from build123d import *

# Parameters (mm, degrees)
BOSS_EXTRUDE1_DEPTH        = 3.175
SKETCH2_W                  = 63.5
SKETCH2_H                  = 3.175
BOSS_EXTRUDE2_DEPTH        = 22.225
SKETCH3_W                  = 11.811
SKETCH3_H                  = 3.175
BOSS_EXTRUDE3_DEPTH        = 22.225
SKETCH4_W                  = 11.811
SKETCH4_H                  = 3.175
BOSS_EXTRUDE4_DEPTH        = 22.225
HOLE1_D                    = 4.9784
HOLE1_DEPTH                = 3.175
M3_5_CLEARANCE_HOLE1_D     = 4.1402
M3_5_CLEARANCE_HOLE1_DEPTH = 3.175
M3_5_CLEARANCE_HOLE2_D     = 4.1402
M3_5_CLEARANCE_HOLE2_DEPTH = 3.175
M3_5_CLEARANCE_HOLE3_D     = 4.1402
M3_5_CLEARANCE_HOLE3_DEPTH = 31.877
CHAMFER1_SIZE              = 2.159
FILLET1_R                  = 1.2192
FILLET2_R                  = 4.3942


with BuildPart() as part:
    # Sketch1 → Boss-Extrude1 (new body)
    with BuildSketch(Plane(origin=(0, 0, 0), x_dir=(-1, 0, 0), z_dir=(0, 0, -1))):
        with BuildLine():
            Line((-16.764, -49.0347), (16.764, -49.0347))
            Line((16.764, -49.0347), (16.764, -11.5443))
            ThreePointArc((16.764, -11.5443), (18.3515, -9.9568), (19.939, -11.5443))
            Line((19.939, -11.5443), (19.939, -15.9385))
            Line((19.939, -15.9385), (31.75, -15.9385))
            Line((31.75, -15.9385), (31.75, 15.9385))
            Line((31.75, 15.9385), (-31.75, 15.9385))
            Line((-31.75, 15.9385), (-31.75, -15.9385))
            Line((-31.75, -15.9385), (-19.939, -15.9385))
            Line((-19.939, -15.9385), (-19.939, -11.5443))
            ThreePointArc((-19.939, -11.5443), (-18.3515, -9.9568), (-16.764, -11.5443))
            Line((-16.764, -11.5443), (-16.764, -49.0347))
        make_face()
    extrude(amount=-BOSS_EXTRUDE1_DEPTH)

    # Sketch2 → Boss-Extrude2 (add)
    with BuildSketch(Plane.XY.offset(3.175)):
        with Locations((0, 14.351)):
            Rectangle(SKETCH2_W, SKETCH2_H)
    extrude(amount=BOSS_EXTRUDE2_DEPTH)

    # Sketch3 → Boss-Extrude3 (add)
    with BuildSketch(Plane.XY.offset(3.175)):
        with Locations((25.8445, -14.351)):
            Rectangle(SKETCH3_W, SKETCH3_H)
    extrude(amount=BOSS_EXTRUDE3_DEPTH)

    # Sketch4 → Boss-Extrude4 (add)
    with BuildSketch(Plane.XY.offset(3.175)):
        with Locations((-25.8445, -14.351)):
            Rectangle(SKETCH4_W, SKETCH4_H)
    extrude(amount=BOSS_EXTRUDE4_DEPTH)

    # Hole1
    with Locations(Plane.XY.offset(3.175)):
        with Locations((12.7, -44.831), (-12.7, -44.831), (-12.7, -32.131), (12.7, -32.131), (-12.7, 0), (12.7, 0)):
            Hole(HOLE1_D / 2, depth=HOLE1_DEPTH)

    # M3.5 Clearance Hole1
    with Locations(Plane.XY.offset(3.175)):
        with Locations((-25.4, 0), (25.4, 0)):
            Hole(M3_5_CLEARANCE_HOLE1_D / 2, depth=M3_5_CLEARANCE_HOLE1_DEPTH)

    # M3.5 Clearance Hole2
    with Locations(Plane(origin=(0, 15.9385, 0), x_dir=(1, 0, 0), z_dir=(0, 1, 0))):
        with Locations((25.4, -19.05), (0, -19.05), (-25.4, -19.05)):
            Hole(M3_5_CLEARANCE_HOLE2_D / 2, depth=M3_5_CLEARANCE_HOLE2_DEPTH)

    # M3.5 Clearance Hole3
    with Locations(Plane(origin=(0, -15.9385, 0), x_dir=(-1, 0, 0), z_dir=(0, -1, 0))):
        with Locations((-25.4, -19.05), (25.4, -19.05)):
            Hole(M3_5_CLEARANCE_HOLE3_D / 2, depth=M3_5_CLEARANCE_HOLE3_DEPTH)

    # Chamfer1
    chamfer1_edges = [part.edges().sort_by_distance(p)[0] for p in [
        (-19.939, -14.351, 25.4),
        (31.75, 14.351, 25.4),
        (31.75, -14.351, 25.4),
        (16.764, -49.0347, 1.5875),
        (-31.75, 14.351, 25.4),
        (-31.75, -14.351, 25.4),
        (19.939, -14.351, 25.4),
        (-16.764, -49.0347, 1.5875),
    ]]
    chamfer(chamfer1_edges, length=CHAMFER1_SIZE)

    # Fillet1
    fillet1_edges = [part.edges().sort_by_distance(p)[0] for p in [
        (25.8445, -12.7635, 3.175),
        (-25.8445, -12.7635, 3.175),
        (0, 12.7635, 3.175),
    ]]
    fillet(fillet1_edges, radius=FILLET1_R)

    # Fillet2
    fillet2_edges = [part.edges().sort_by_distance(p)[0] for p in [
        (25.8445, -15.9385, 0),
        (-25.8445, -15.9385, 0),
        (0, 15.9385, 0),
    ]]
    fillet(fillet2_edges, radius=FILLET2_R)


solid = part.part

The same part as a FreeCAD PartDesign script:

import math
import FreeCAD as App
import Part
import Sketcher

V = App.Vector
Q = App.Units.Quantity


def edges_at(feature, points):
    """Names of the edges that pass closest to the given points."""
    edges = feature.Shape.Edges
    near = lambda p: min(range(len(edges)), key=lambda i: edges[i].distToShape(Part.Vertex(*p))[0])
    return sorted({f"Edge{near(p) + 1}" for p in points})

doc = App.newDocument("Part")
body = doc.addObject("PartDesign::Body", "Body")

# Sketch on XY plane
sketch1 = doc.addObject("Sketcher::SketchObject", "Sketch")
body.addObject(sketch1)
sketch1.AttachmentSupport = (doc.XY_Plane, [""])
sketch1.MapMode = "FlatFace"
sketch1.addGeometry([
    Part.LineSegment(V(16.8, -49, 0), V(-16.8, -49, 0)),  # 0
    Part.LineSegment(V(-16.8, -49, 0), V(-16.8, -11.5, 0)),  # 1
    Part.ArcOfCircle(Part.Circle(V(-18.4, -11.5, 0), V(0, 0, 1), 1.6), math.radians(0), math.radians(180)),  # 2
    Part.LineSegment(V(-19.9, -11.5, 0), V(-19.9, -15.9, 0)),  # 3
    Part.LineSegment(V(-19.9, -15.9, 0), V(-31.8, -15.9, 0)),  # 4
    Part.LineSegment(V(-31.8, -15.9, 0), V(-31.8, 15.9, 0)),  # 5
    Part.LineSegment(V(-31.8, 15.9, 0), V(31.8, 15.9, 0)),  # 6
    Part.LineSegment(V(31.8, 15.9, 0), V(31.8, -15.9, 0)),  # 7
    Part.LineSegment(V(31.8, -15.9, 0), V(19.9, -15.9, 0)),  # 8
    Part.LineSegment(V(19.9, -15.9, 0), V(19.9, -11.5, 0)),  # 9
    Part.ArcOfCircle(Part.Circle(V(18.4, -11.5, 0), V(0, 0, 1), 1.6), math.radians(0), math.radians(180)),  # 10
    Part.LineSegment(V(16.8, -11.5, 0), V(16.8, -49, 0)),  # 11
], False)
sketch1.addConstraint([
    Sketcher.Constraint("Coincident", 0, 2, 1, 1),
    Sketcher.Constraint("Tangent", 1, 2, 2, 1),
    Sketcher.Constraint("Tangent", 2, 2, 3, 1),
    Sketcher.Constraint("Coincident", 3, 2, 4, 1),
    Sketcher.Constraint("Coincident", 4, 2, 5, 1),
    Sketcher.Constraint("Coincident", 5, 2, 6, 1),
    Sketcher.Constraint("Coincident", 6, 2, 7, 1),
    Sketcher.Constraint("Coincident", 7, 2, 8, 1),
    Sketcher.Constraint("Coincident", 8, 2, 9, 1),
    Sketcher.Constraint("Tangent", 9, 2, 10, 1),
    Sketcher.Constraint("Tangent", 10, 2, 11, 1),
    Sketcher.Constraint("Coincident", 11, 2, 0, 1),
    Sketcher.Constraint("Horizontal", 0),
    Sketcher.Constraint("Vertical", 1),
    Sketcher.Constraint("Vertical", 3),
    Sketcher.Constraint("Horizontal", 4),
    Sketcher.Constraint("Vertical", 5),
    Sketcher.Constraint("Horizontal", 6),
    Sketcher.Constraint("Vertical", 7),
    Sketcher.Constraint("Horizontal", 8),
    Sketcher.Constraint("Vertical", 9),
    Sketcher.Constraint("Vertical", 11),
    Sketcher.Constraint("Equal", 2, 10),
    Sketcher.Constraint("Symmetric", 4, 2, 6, 2, -1, 1),
    Sketcher.Constraint("Symmetric", 2, 3, 10, 3, -2),
    Sketcher.Constraint("Horizontal", 4, 2, 7, 2),
    Sketcher.Constraint("DistanceX", 6, 1, 6, 2, Q("2.5 in")),
    Sketcher.Constraint("Radius", 2, Q("0.0625 in")),
    Sketcher.Constraint("DistanceX", 0, 2, 0, 1, Q("1.32 in")),
    Sketcher.Constraint("DistanceY", 1, 1, 1, 2, Q("1.476 in")),
    Sketcher.Constraint("DistanceY", 3, 2, 3, 1, Q("0.173 in")),
    Sketcher.Constraint("DistanceY", 5, 1, 5, 2, Q("1.255 in")),
])
pad1 = doc.addObject("PartDesign::Pad", "Pad")
body.addObject(pad1)
pad1.Profile = sketch1
pad1.Length = Q("0.125 in")

# Sketch on XY plane
sketch2 = doc.addObject("Sketcher::SketchObject", "Sketch001")
body.addObject(sketch2)
sketch2.AttachmentSupport = (doc.XY_Plane, [""])
sketch2.MapMode = "FlatFace"
sketch2.AttachmentOffset = App.Placement(V(0, 0, 0.125 * 25.4), App.Rotation())
sketch2.addGeometry([
    Part.LineSegment(V(-31.8, 15.9, 0), V(-31.8, 12.8, 0)),
    Part.LineSegment(V(-31.8, 12.8, 0), V(31.8, 12.8, 0)),
    Part.LineSegment(V(31.8, 12.8, 0), V(31.8, 15.9, 0)),
    Part.LineSegment(V(31.8, 15.9, 0), V(-31.8, 15.9, 0)),
], False)
sketch2.addConstraint([
    Sketcher.Constraint("Coincident", 0, 2, 1, 1),
    Sketcher.Constraint("Coincident", 1, 2, 2, 1),
    Sketcher.Constraint("Coincident", 2, 2, 3, 1),
    Sketcher.Constraint("Coincident", 3, 2, 0, 1),
    Sketcher.Constraint("Vertical", 0),
    Sketcher.Constraint("Horizontal", 1),
    Sketcher.Constraint("Vertical", 2),
    Sketcher.Constraint("Horizontal", 3),
    Sketcher.Constraint("DistanceX", 1, 1, 1, 2, Q("2.5 in")),
    Sketcher.Constraint("DistanceY", 0, 2, 0, 1, Q("0.125 in")),
    Sketcher.Constraint("DistanceX", 0, 2, -1, 1, Q("1.25 in")),
    Sketcher.Constraint("DistanceY", -1, 1, 0, 2, Q("0.5025 in")),
])
pad2 = doc.addObject("PartDesign::Pad", "Pad001")
body.addObject(pad2)
pad2.Profile = sketch2
pad2.Length = Q("0.875 in")

# Sketch on XY plane
sketch3 = doc.addObject("Sketcher::SketchObject", "Sketch002")
body.addObject(sketch3)
sketch3.AttachmentSupport = (doc.XY_Plane, [""])
sketch3.MapMode = "FlatFace"
sketch3.AttachmentOffset = App.Placement(V(0, 0, 0.125 * 25.4), App.Rotation())
sketch3.addGeometry([
    Part.LineSegment(V(19.9, -12.8, 0), V(19.9, -15.9, 0)),
    Part.LineSegment(V(19.9, -15.9, 0), V(31.8, -15.9, 0)),
    Part.LineSegment(V(31.8, -15.9, 0), V(31.8, -12.8, 0)),
    Part.LineSegment(V(31.8, -12.8, 0), V(19.9, -12.8, 0)),
], False)
sketch3.addConstraint([
    Sketcher.Constraint("Coincident", 0, 2, 1, 1),
    Sketcher.Constraint("Coincident", 1, 2, 2, 1),
    Sketcher.Constraint("Coincident", 2, 2, 3, 1),
    Sketcher.Constraint("Coincident", 3, 2, 0, 1),
    Sketcher.Constraint("Vertical", 0),
    Sketcher.Constraint("Horizontal", 1),
    Sketcher.Constraint("Vertical", 2),
    Sketcher.Constraint("Horizontal", 3),
    Sketcher.Constraint("DistanceX", 1, 1, 1, 2, Q("0.465 in")),
    Sketcher.Constraint("DistanceY", 0, 2, 0, 1, Q("0.125 in")),
    Sketcher.Constraint("DistanceX", -1, 1, 1, 2, Q("1.25 in")),
    Sketcher.Constraint("DistanceY", 0, 2, -1, 1, Q("0.6275 in")),
])
pad3 = doc.addObject("PartDesign::Pad", "Pad002")
body.addObject(pad3)
pad3.Profile = sketch3
pad3.Length = Q("0.875 in")

# Sketch on XY plane
sketch4 = doc.addObject("Sketcher::SketchObject", "Sketch003")
body.addObject(sketch4)
sketch4.AttachmentSupport = (doc.XY_Plane, [""])
sketch4.MapMode = "FlatFace"
sketch4.AttachmentOffset = App.Placement(V(0, 0, 0.125 * 25.4), App.Rotation())
sketch4.addGeometry([
    Part.LineSegment(V(-31.8, -12.8, 0), V(-31.8, -15.9, 0)),
    Part.LineSegment(V(-31.8, -15.9, 0), V(-19.9, -15.9, 0)),
    Part.LineSegment(V(-19.9, -15.9, 0), V(-19.9, -12.8, 0)),
    Part.LineSegment(V(-19.9, -12.8, 0), V(-31.8, -12.8, 0)),
], False)
sketch4.addConstraint([
    Sketcher.Constraint("Coincident", 0, 2, 1, 1),
    Sketcher.Constraint("Coincident", 1, 2, 2, 1),
    Sketcher.Constraint("Coincident", 2, 2, 3, 1),
    Sketcher.Constraint("Coincident", 3, 2, 0, 1),
    Sketcher.Constraint("Vertical", 0),
    Sketcher.Constraint("Horizontal", 1),
    Sketcher.Constraint("Vertical", 2),
    Sketcher.Constraint("Horizontal", 3),
    Sketcher.Constraint("DistanceX", 1, 1, 1, 2, Q("0.465 in")),
    Sketcher.Constraint("DistanceY", 0, 2, 0, 1, Q("0.125 in")),
    Sketcher.Constraint("DistanceX", 0, 2, -1, 1, Q("1.25 in")),
    Sketcher.Constraint("DistanceY", 0, 2, -1, 1, Q("0.6275 in")),
])
pad4 = doc.addObject("PartDesign::Pad", "Pad003")
body.addObject(pad4)
pad4.Profile = sketch4
pad4.Length = Q("0.875 in")

# Sketch on XY plane
sketch5 = doc.addObject("Sketcher::SketchObject", "Sketch004")
body.addObject(sketch5)
sketch5.AttachmentSupport = (doc.XY_Plane, [""])
sketch5.MapMode = "FlatFace"
sketch5.AttachmentOffset = App.Placement(V(0, 0, 0.125 * 25.4), App.Rotation())
sketch5.addGeometry([
    Part.Circle(V(12.7, -44.8, 0), V(0, 0, 1), 2.5),  # 0
    Part.Circle(V(-12.7, -44.8, 0), V(0, 0, 1), 2.5),  # 1
    Part.Circle(V(-12.7, -32.1, 0), V(0, 0, 1), 2.5),  # 2
    Part.Circle(V(12.7, -32.1, 0), V(0, 0, 1), 2.5),  # 3
    Part.Circle(V(-12.7, 0, 0), V(0, 0, 1), 2.5),  # 4
    Part.Circle(V(12.7, 0, 0), V(0, 0, 1), 2.5),  # 5
], False)
sketch5.addConstraint([
    Sketcher.Constraint("Equal", 0, 1),
    Sketcher.Constraint("Equal", 1, 2),
    Sketcher.Constraint("Equal", 2, 3),
    Sketcher.Constraint("Equal", 3, 4),
    Sketcher.Constraint("Equal", 4, 5),
    Sketcher.Constraint("Symmetric", 4, 3, 5, 3, -1, 1),
    Sketcher.Constraint("Symmetric", 0, 3, 1, 3, -2),
    Sketcher.Constraint("Symmetric", 2, 3, 3, 3, -2),
    Sketcher.Constraint("PointOnObject", 4, 3, -1),
    Sketcher.Constraint("Vertical", 1, 3, 2, 3),
    Sketcher.Constraint("Vertical", 2, 3, 4, 3),
    Sketcher.Constraint("Diameter", 0, Q("0.196 in")),
    Sketcher.Constraint("DistanceX", 1, 3, 0, 3, Q("1 in")),
    Sketcher.Constraint("DistanceY", 1, 3, 2, 3, Q("0.5 in")),
    Sketcher.Constraint("DistanceY", 0, 3, -1, 1, Q("1.765 in")),
])
doc.recompute()
hole = doc.addObject("PartDesign::Hole", "Hole")
body.addObject(hole)
hole.Profile = sketch5
hole.ThreadType = "None"
hole.Diameter = Q("0.196 in")
hole.DepthType = "Dimension"
hole.Depth = Q("0.125 in")
hole.DrillPoint = "Flat"

# Sketch on XY plane
sketch6 = doc.addObject("Sketcher::SketchObject", "Sketch005")
body.addObject(sketch6)
sketch6.AttachmentSupport = (doc.XY_Plane, [""])
sketch6.MapMode = "FlatFace"
sketch6.AttachmentOffset = App.Placement(V(0, 0, 0.125 * 25.4), App.Rotation())
sketch6.addGeometry([
    Part.Circle(V(-25.4, 0, 0), V(0, 0, 1), 2.1),
    Part.Circle(V(25.4, 0, 0), V(0, 0, 1), 2.1),
], False)
sketch6.addConstraint([
    Sketcher.Constraint("Equal", 0, 1),
    Sketcher.Constraint("Symmetric", 0, 3, 1, 3, -1, 1),
    Sketcher.Constraint("PointOnObject", 0, 3, -1),
    Sketcher.Constraint("Diameter", 0, Q("0.163 in")),
    Sketcher.Constraint("DistanceX", 0, 3, -1, 1, Q("1 in")),
])
doc.recompute()
hole2 = doc.addObject("PartDesign::Hole", "Hole001")
body.addObject(hole2)
hole2.Profile = sketch6
hole2.ThreadType = "None"
hole2.Diameter = Q("0.163 in")
hole2.DepthType = "Dimension"
hole2.Depth = Q("0.125 in")
hole2.DrillPoint = "Flat"

# Sketch on XZ plane
sketch7 = doc.addObject("Sketcher::SketchObject", "Sketch006")
body.addObject(sketch7)
sketch7.AttachmentSupport = (doc.XZ_Plane, [""])
sketch7.MapMode = "FlatFace"
sketch7.AttachmentOffset = App.Placement(V(0, 0, -0.6275 * 25.4), App.Rotation())
sketch7.addGeometry([
    Part.Circle(V(25.4, 19.1, 0), V(0, 0, 1), 2.1),
    Part.Circle(V(0, 19.1, 0), V(0, 0, 1), 2.1),
    Part.Circle(V(-25.4, 19.1, 0), V(0, 0, 1), 2.1),
], False)
sketch7.addConstraint([
    Sketcher.Constraint("Equal", 0, 1),
    Sketcher.Constraint("Equal", 1, 2),
    Sketcher.Constraint("Symmetric", 0, 3, 2, 3, -2),
    Sketcher.Constraint("PointOnObject", 1, 3, -2),
    Sketcher.Constraint("Horizontal", 0, 3, 1, 3),
    Sketcher.Constraint("Diameter", 0, Q("0.163 in")),
    Sketcher.Constraint("DistanceX", -1, 1, 0, 3, Q("1 in")),
    Sketcher.Constraint("DistanceY", -1, 1, 0, 3, Q("0.75 in")),
])
doc.recompute()
hole3 = doc.addObject("PartDesign::Hole", "Hole002")
body.addObject(hole3)
hole3.Profile = sketch7
hole3.ThreadType = "None"
hole3.Diameter = Q("0.163 in")
hole3.DepthType = "Dimension"
hole3.Depth = Q("0.125 in")
hole3.DrillPoint = "Flat"
hole3.Reversed = True

# Sketch on XZ plane
sketch8 = doc.addObject("Sketcher::SketchObject", "Sketch007")
body.addObject(sketch8)
sketch8.AttachmentSupport = (doc.XZ_Plane, [""])
sketch8.MapMode = "FlatFace"
sketch8.AttachmentOffset = App.Placement(V(0, 0, 0.6275 * 25.4), App.Rotation())
sketch8.addGeometry([
    Part.Circle(V(25.4, 19.1, 0), V(0, 0, 1), 2.1),
    Part.Circle(V(-25.4, 19.1, 0), V(0, 0, 1), 2.1),
], False)
sketch8.addConstraint([
    Sketcher.Constraint("Equal", 0, 1),
    Sketcher.Constraint("Symmetric", 0, 3, 1, 3, -2),
    Sketcher.Constraint("Diameter", 0, Q("0.163 in")),
    Sketcher.Constraint("DistanceX", -1, 1, 0, 3, Q("1 in")),
    Sketcher.Constraint("DistanceY", -1, 1, 0, 3, Q("0.75 in")),
])
doc.recompute()
hole4 = doc.addObject("PartDesign::Hole", "Hole003")
body.addObject(hole4)
hole4.Profile = sketch8
hole4.ThreadType = "None"
hole4.Diameter = Q("0.163 in")
hole4.DepthType = "Dimension"
hole4.Depth = Q("1.255 in")
hole4.DrillPoint = "Flat"
doc.recompute()

chamfer = doc.addObject("PartDesign::Chamfer", "Chamfer")
body.addObject(chamfer)
chamfer.Base = (hole4, edges_at(hole4, [
    (-19.939, -14.351, 25.4),
    (31.75, 14.351, 25.4),
    (31.75, -14.351, 25.4),
    (16.764, -49.035, 1.587),
    (-31.75, 14.351, 25.4),
    (-31.75, -14.351, 25.4),
    (19.939, -14.351, 25.4),
    (-16.764, -49.035, 1.587),
]))
chamfer.Size = Q("0.085 in")
doc.recompute()

fillet = doc.addObject("PartDesign::Fillet", "Fillet")
body.addObject(fillet)
fillet.Base = (chamfer, edges_at(chamfer, [(25.845, -12.764, 3.175), (-25.845, -12.764, 3.175), (0, 12.764, 3.175)]))
fillet.Radius = Q("0.048 in")
doc.recompute()

fillet2 = doc.addObject("PartDesign::Fillet", "Fillet001")
body.addObject(fillet2)
fillet2.Base = (fillet, edges_at(fillet, [(25.845, -15.938, 0), (-25.845, -15.938, 0), (0, 15.938, 0)]))
fillet2.Radius = Q("0.173 in")

doc.recompute()
